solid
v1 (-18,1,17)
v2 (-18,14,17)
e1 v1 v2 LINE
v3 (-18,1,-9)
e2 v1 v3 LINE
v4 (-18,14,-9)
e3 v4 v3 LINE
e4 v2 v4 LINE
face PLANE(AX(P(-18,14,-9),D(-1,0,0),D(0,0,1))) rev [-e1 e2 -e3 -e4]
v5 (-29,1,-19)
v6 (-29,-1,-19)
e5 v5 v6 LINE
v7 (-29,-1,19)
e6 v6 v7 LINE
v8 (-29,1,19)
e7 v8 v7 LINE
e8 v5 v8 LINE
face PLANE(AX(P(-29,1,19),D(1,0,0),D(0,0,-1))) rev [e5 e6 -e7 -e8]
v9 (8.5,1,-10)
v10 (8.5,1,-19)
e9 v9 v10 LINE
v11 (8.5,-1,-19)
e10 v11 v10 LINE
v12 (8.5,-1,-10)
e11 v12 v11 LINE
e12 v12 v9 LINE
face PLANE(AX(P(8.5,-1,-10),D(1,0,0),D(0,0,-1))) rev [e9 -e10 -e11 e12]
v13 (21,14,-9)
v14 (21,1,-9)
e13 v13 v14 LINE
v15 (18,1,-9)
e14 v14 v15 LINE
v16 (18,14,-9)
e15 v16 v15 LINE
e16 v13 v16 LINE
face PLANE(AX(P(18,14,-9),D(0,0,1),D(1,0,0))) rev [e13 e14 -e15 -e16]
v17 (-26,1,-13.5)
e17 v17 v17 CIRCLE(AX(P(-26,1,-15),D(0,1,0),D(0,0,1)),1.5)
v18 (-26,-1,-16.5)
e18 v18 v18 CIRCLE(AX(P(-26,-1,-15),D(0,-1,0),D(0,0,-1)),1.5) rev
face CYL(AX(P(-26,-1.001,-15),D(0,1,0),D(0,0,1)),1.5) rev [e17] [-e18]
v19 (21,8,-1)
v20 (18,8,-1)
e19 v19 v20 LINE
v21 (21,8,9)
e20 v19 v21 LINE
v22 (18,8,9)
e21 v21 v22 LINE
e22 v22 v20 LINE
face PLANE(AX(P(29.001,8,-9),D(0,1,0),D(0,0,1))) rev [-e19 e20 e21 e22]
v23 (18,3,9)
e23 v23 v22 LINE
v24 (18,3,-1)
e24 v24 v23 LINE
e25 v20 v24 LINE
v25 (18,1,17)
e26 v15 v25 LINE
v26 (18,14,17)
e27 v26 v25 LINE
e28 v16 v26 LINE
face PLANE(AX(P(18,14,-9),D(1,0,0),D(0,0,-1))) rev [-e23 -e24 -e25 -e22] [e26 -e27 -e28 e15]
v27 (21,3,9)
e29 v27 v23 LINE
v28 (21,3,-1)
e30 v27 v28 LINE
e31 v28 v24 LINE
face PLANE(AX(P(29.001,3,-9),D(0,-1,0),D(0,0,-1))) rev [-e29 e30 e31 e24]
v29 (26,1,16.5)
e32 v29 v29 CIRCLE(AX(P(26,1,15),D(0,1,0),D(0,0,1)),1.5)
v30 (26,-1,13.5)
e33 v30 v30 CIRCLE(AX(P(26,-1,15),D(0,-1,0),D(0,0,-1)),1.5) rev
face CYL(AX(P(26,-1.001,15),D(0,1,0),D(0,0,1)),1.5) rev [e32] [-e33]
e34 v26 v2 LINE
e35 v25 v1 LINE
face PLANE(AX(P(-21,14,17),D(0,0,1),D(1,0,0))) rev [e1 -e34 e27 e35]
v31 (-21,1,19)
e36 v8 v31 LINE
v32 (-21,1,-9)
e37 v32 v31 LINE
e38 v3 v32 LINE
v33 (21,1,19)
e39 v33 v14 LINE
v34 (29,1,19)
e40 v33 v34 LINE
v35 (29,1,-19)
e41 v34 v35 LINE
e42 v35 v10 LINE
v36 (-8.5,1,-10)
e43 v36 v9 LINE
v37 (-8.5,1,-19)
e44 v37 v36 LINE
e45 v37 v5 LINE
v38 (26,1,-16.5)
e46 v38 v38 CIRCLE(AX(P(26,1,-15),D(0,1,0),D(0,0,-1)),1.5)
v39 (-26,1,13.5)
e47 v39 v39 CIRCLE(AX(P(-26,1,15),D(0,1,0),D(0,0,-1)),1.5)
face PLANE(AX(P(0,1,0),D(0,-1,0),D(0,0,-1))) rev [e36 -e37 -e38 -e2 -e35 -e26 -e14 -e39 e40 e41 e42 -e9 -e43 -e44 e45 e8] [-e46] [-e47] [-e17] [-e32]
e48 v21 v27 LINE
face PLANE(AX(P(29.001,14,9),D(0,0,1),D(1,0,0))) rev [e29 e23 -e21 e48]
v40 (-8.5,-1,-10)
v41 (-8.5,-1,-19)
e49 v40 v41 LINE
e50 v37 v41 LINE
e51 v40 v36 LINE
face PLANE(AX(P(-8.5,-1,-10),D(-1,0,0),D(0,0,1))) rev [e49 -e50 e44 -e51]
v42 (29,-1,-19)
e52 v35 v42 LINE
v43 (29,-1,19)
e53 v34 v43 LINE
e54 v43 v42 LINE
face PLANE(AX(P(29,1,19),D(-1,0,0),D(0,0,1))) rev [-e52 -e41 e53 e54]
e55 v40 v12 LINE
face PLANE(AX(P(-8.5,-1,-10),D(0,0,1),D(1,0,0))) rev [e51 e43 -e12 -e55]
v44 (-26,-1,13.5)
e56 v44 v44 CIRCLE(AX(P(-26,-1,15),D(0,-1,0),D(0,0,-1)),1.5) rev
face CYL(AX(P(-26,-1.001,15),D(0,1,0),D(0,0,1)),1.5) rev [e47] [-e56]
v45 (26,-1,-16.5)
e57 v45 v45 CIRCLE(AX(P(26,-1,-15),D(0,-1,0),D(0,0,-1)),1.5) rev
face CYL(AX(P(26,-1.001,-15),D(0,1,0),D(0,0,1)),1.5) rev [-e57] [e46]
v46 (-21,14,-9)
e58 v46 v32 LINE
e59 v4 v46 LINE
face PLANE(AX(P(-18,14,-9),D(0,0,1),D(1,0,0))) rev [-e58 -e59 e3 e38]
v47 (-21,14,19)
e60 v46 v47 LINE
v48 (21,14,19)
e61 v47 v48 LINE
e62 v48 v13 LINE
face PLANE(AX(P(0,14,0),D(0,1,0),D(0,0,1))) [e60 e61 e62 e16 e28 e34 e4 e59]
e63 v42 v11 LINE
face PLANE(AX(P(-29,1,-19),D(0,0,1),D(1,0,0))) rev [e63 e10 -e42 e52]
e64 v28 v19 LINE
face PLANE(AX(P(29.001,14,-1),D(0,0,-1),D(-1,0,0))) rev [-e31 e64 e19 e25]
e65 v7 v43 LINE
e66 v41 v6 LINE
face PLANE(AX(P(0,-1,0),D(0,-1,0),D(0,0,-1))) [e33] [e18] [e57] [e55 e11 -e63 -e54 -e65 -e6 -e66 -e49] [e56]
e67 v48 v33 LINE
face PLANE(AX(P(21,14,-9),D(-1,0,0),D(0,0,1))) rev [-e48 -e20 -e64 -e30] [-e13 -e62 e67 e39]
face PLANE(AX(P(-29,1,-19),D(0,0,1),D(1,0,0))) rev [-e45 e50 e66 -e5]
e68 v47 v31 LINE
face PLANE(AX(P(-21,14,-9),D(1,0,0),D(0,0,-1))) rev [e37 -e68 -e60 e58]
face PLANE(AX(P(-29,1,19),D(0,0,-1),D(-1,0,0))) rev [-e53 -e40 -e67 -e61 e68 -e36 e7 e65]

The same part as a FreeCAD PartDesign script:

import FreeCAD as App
import Part
import Sketcher

V = App.Vector


def add_polygon(sketch, points):
    """Adds a closed chain of lines whose ends are joined by coincident constraints."""
    first, n = sketch.GeometryCount, len(points)
    for a, b in zip(points, points[1:] + points[:1]):
        sketch.addGeometry(Part.LineSegment(App.Vector(*a, 0), App.Vector(*b, 0)), False)
    for i in range(n):
        sketch.addConstraint(Sketcher.Constraint("Coincident", first + i, 2, first + (i + 1) % n, 1))

doc = App.newDocument("Part")
body = doc.addObject("PartDesign::Body", "Body")

# Sketch on XZ plane
sketch1 = body.newObject("Sketcher::SketchObject", "Sketch")
sketch1.AttachmentSupport = (doc.getObject("XZ_Plane"), [""])
sketch1.MapMode = "FlatFace"
add_polygon(sketch1, [(-29, -19), (-29, 19), (29, 19), (29, -19)])  # lines 0-3
sketch1.addConstraint([
    Sketcher.Constraint("Vertical", 0),
    Sketcher.Constraint("Horizontal", 1),
    Sketcher.Constraint("Vertical", 2),
    Sketcher.Constraint("Horizontal", 3),
    Sketcher.Constraint("Symmetric", 0, 2, 2, 2, -1, 1),
    Sketcher.Constraint("DistanceX", 1, 1, 1, 2, 58.0),
    Sketcher.Constraint("DistanceY", 0, 1, 0, 2, 38.0),
])
pad1 = body.newObject("PartDesign::Pad", "Pad")
pad1.Profile = sketch1
pad1.Length = 2
pad1.Midplane = True

# Sketch on XZ plane
sketch2 = body.newObject("Sketcher::SketchObject", "Sketch001")
sketch2.AttachmentSupport = (doc.getObject("XZ_Plane"), [""])
sketch2.MapMode = "FlatFace"
add_polygon(sketch2, [(-8.5, -24.50204), (-8.5, -10), (8.5, -10), (8.5, -24.50204)])  # lines 0-3
sketch2.addConstraint([
    Sketcher.Constraint("Vertical", 0),
    Sketcher.Constraint("Horizontal", 1),
    Sketcher.Constraint("Vertical", 2),
    Sketcher.Constraint("Horizontal", 3),
    Sketcher.Constraint("DistanceX", 1, 1, 1, 2, 17.0),
    Sketcher.Constraint("DistanceY", 0, 2, -1, 1, 10.0),
    Sketcher.Constraint("DistanceX", 0, 2, -1, 1, 8.5),
    Sketcher.Constraint("DistanceY", 0, 1, 0, 2, 14.50204),
])
pocket1 = body.newObject("PartDesign::Pocket", "Pocket")
pocket1.Profile = sketch2
pocket1.Type = "ThroughAll"
pocket1.Midplane = True

# Sketch on XZ plane
sketch3 = body.newObject("Sketcher::SketchObject", "Sketch002")
sketch3.AttachmentSupport = (doc.getObject("XZ_Plane"), [""])
sketch3.MapMode = "FlatFace"
sketch3.AttachmentOffset = App.Placement(V(0, 0, -1), App.Rotation())
add_polygon(sketch3, [(18, -9), (18, 18), (21, 18), (21, -9)])  # lines 0-3
add_polygon(sketch3, [(-21, -9), (-21, 18), (-18, 18), (-18, -9)])  # lines 4-7
sketch3.addConstraint([
    Sketcher.Constraint("Vertical", 0),
    Sketcher.Constraint("Horizontal", 1),
    Sketcher.Constraint("Vertical", 2),
    Sketcher.Constraint("Horizontal", 3),
    Sketcher.Constraint("Vertical", 4),
    Sketcher.Constraint("Horizontal", 5),
    Sketcher.Constraint("Vertical", 6),
    Sketcher.Constraint("Horizontal", 7),
    Sketcher.Constraint("Symmetric", 1, 2, 4, 2, -2),
    Sketcher.Constraint("Symmetric", 3, 2, 6, 2, -2),
    Sketcher.Constraint("DistanceX", 1, 1, 1, 2, 3.0),
    Sketcher.Constraint("DistanceY", 0, 1, 0, 2, 27.0),
    Sketcher.Constraint("DistanceX", -1, 1, 0, 2, 18.0),
    Sketcher.Constraint("DistanceY", -1, 1, 0, 2, 18.0),
])
pad2 = body.newObject("PartDesign::Pad", "Pad001")
pad2.Profile = sketch3
pad2.Length = 13
pad2.Reversed = True

# Sketch on XZ plane
sketch4 = body.newObject("Sketcher::SketchObject", "Sketch003")
sketch4.AttachmentSupport = (doc.getObject("XZ_Plane"), [""])
sketch4.MapMode = "FlatFace"
sketch4.AttachmentOffset = App.Placement(V(0, 0, -1), App.Rotation())
add_polygon(sketch4, [(-21, 17), (-21, 19), (21, 19), (21, 17)])  # lines 0-3
sketch4.addConstraint([
    Sketcher.Constraint("Vertical", 0),
    Sketcher.Constraint("Horizontal", 1),
    Sketcher.Constraint("Vertical", 2),
    Sketcher.Constraint("Horizontal", 3),
    Sketcher.Constraint("DistanceX", 1, 1, 1, 2, 42.0),
    Sketcher.Constraint("DistanceY", 0, 1, 0, 2, 2.0),
    Sketcher.Constraint("DistanceX", 0, 2, -1, 1, 21.0),
    Sketcher.Constraint("DistanceY", -1, 1, 0, 2, 19.0),
])
pad3 = body.newObject("PartDesign::Pad", "Pad002")
pad3.Profile = sketch4
pad3.Length = 13
pad3.Reversed = True

# Sketch on YZ plane
sketch5 = body.newObject("Sketcher::SketchObject", "Sketch004")
sketch5.AttachmentSupport = (doc.getObject("YZ_Plane"), [""])
sketch5.MapMode = "FlatFace"
sketch5.AttachmentOffset = App.Placement(V(0, 0, 21), App.Rotation())
add_polygon(sketch5, [(8, -1), (3, -1), (3, 9), (8, 9)])  # lines 0-3
sketch5.addConstraint([
    Sketcher.Constraint("Horizontal", 0),
    Sketcher.Constraint("Vertical", 1),
    Sketcher.Constraint("Horizontal", 2),
    Sketcher.Constraint("Vertical", 3),
    Sketcher.Constraint("DistanceX", 0, 2, 0, 1, 5.0),
    Sketcher.Constraint("DistanceY", 1, 1, 1, 2, 10.0),
    Sketcher.Constraint("DistanceX", -1, 1, 0, 2, 3.0),
    Sketcher.Constraint("DistanceY", 0, 2, -1, 1, 1.0),
])
pocket2 = body.newObject("PartDesign::Pocket", "Pocket001")
pocket2.Profile = sketch5
pocket2.Length = 3

# Sketch on XZ plane
sketch6 = body.newObject("Sketcher::SketchObject", "Sketch005")
sketch6.AttachmentSupport = (doc.getObject("XZ_Plane"), [""])
sketch6.MapMode = "FlatFace"
sketch6.AttachmentOffset = App.Placement(V(0, 0, -1), App.Rotation())
sketch6.addGeometry(Part.Circle(V(-26, -15, 0), V(0, 0, 1), 1.5), False)
sketch6.addConstraint([
    Sketcher.Constraint("Diameter", 0, 3.0),
    Sketcher.Constraint("DistanceX", 0, 3, -1, 1, 26.0),
    Sketcher.Constraint("DistanceY", 0, 3, -1, 1, 15.0),
])
pocket3 = body.newObject("PartDesign::Pocket", "Pocket002")
pocket3.Profile = sketch6
pocket3.Type = "UpToFirst"
pocket3.Reversed = True

# Sketch on XZ plane
sketch7 = body.newObject("Sketcher::SketchObject", "Sketch006")
sketch7.AttachmentSupport = (doc.getObject("XZ_Plane"), [""])
sketch7.MapMode = "FlatFace"
sketch7.AttachmentOffset = App.Placement(V(0, 0, -1), App.Rotation())
sketch7.addGeometry(Part.Circle(V(-26, 15, 0), V(0, 0, 1), 1.5), False)
sketch7.addConstraint([
    Sketcher.Constraint("Diameter", 0, 3.0),
    Sketcher.Constraint("DistanceX", 0, 3, -1, 1, 26.0),
    Sketcher.Constraint("DistanceY", -1, 1, 0, 3, 15.0),
])
pocket4 = body.newObject("PartDesign::Pocket", "Pocket003")
pocket4.Profile = sketch7
pocket4.Type = "UpToFirst"
pocket4.Reversed = True

# Sketch on XZ plane
sketch8 = body.newObject("Sketcher::SketchObject", "Sketch007")
sketch8.AttachmentSupport = (doc.getObject("XZ_Plane"), [""])
sketch8.MapMode = "FlatFace"
sketch8.AttachmentOffset = App.Placement(V(0, 0, -1), App.Rotation())
sketch8.addGeometry(Part.Circle(V(26, 15, 0), V(0, 0, 1), 1.5), False)
sketch8.addConstraint([
    Sketcher.Constraint("Diameter", 0, 3.0),
    Sketcher.Constraint("DistanceX", -1, 1, 0, 3, 26.0),
    Sketcher.Constraint("DistanceY", -1, 1, 0, 3, 15.0),
])
pocket5 = body.newObject("PartDesign::Pocket", "Pocket004")
pocket5.Profile = sketch8
pocket5.Type = "UpToFirst"
pocket5.Reversed = True

# Sketch on XZ plane
sketch9 = body.newObject("Sketcher::SketchObject", "Sketch008")
sketch9.AttachmentSupport = (doc.getObject("XZ_Plane"), [""])
sketch9.MapMode = "FlatFace"
sketch9.AttachmentOffset = App.Placement(V(0, 0, -1), App.Rotation())
sketch9.addGeometry(Part.Circle(V(26, -15, 0), V(0, 0, 1), 1.5), False)
sketch9.addConstraint([
    Sketcher.Constraint("Diameter", 0, 3.0),
    Sketcher.Constraint("DistanceX", -1, 1, 0, 3, 26.0),
    Sketcher.Constraint("DistanceY", 0, 3, -1, 1, 15.0),
])
pocket6 = body.newObject("PartDesign::Pocket", "Pocket005")
pocket6.Profile = sketch9
pocket6.Type = "UpToFirst"
pocket6.Reversed = True

doc.recompute()
